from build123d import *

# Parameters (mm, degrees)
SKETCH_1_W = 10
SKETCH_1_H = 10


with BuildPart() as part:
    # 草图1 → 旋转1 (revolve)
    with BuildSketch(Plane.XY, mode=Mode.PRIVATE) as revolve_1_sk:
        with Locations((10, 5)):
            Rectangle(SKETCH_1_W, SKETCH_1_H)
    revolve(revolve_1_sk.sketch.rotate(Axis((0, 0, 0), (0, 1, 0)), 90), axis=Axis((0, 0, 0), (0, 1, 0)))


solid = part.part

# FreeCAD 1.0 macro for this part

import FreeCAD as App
import Part
import Sketcher

V = App.Vector
Q = App.Units.Quantity

doc = App.newDocument("Part")
body = doc.addObject("PartDesign::Body", "Body")

# Sketch on XY plane
sketch1 = body.newObject("Sketcher::SketchObject", "Sketch")
sketch1.AttachmentSupport = (doc.getObject("XY_Plane"), [""])
sketch1.MapMode = "FlatFace"
sketch1.addGeometry([
    Part.LineSegment(V(5, 10, 0), V(5, 0, 0)),
    Part.LineSegment(V(5, 0, 0), V(15, 0, 0)),
    Part.LineSegment(V(15, 0, 0), V(15, 10, 0)),
    Part.LineSegment(V(15, 10, 0), V(5, 10, 0)),
], False)
sketch1.addConstraint([
    Sketcher.Constraint("Coincident", 0, 2, 1, 1),
    Sketcher.Constraint("Coincident", 1, 2, 2, 1),
    Sketcher.Constraint("Coincident", 2, 2, 3, 1),
    Sketcher.Constraint("Coincident", 3, 2, 0, 1),
    Sketcher.Constraint("Vertical", 0),
    Sketcher.Constraint("Horizontal", 1),
    Sketcher.Constraint("Vertical", 2),
    Sketcher.Constraint("Horizontal", 3),
    Sketcher.Constraint("PointOnObject", 0, 2, -1),
    Sketcher.Constraint("Equal", 3, 0),
    Sketcher.Constraint("DistanceX", 1, 1, 1, 2, Q("10 mm")),
    Sketcher.Constraint("DistanceX", -1, 1, 0, 2, Q("5 mm")),
])
revolution = body.newObject("PartDesign::Revolution", "Revolution")
revolution.Profile = sketch1
revolution.ReferenceAxis = (sketch1, ["V_Axis"])
revolution.Angle = 360

doc.recompute()
